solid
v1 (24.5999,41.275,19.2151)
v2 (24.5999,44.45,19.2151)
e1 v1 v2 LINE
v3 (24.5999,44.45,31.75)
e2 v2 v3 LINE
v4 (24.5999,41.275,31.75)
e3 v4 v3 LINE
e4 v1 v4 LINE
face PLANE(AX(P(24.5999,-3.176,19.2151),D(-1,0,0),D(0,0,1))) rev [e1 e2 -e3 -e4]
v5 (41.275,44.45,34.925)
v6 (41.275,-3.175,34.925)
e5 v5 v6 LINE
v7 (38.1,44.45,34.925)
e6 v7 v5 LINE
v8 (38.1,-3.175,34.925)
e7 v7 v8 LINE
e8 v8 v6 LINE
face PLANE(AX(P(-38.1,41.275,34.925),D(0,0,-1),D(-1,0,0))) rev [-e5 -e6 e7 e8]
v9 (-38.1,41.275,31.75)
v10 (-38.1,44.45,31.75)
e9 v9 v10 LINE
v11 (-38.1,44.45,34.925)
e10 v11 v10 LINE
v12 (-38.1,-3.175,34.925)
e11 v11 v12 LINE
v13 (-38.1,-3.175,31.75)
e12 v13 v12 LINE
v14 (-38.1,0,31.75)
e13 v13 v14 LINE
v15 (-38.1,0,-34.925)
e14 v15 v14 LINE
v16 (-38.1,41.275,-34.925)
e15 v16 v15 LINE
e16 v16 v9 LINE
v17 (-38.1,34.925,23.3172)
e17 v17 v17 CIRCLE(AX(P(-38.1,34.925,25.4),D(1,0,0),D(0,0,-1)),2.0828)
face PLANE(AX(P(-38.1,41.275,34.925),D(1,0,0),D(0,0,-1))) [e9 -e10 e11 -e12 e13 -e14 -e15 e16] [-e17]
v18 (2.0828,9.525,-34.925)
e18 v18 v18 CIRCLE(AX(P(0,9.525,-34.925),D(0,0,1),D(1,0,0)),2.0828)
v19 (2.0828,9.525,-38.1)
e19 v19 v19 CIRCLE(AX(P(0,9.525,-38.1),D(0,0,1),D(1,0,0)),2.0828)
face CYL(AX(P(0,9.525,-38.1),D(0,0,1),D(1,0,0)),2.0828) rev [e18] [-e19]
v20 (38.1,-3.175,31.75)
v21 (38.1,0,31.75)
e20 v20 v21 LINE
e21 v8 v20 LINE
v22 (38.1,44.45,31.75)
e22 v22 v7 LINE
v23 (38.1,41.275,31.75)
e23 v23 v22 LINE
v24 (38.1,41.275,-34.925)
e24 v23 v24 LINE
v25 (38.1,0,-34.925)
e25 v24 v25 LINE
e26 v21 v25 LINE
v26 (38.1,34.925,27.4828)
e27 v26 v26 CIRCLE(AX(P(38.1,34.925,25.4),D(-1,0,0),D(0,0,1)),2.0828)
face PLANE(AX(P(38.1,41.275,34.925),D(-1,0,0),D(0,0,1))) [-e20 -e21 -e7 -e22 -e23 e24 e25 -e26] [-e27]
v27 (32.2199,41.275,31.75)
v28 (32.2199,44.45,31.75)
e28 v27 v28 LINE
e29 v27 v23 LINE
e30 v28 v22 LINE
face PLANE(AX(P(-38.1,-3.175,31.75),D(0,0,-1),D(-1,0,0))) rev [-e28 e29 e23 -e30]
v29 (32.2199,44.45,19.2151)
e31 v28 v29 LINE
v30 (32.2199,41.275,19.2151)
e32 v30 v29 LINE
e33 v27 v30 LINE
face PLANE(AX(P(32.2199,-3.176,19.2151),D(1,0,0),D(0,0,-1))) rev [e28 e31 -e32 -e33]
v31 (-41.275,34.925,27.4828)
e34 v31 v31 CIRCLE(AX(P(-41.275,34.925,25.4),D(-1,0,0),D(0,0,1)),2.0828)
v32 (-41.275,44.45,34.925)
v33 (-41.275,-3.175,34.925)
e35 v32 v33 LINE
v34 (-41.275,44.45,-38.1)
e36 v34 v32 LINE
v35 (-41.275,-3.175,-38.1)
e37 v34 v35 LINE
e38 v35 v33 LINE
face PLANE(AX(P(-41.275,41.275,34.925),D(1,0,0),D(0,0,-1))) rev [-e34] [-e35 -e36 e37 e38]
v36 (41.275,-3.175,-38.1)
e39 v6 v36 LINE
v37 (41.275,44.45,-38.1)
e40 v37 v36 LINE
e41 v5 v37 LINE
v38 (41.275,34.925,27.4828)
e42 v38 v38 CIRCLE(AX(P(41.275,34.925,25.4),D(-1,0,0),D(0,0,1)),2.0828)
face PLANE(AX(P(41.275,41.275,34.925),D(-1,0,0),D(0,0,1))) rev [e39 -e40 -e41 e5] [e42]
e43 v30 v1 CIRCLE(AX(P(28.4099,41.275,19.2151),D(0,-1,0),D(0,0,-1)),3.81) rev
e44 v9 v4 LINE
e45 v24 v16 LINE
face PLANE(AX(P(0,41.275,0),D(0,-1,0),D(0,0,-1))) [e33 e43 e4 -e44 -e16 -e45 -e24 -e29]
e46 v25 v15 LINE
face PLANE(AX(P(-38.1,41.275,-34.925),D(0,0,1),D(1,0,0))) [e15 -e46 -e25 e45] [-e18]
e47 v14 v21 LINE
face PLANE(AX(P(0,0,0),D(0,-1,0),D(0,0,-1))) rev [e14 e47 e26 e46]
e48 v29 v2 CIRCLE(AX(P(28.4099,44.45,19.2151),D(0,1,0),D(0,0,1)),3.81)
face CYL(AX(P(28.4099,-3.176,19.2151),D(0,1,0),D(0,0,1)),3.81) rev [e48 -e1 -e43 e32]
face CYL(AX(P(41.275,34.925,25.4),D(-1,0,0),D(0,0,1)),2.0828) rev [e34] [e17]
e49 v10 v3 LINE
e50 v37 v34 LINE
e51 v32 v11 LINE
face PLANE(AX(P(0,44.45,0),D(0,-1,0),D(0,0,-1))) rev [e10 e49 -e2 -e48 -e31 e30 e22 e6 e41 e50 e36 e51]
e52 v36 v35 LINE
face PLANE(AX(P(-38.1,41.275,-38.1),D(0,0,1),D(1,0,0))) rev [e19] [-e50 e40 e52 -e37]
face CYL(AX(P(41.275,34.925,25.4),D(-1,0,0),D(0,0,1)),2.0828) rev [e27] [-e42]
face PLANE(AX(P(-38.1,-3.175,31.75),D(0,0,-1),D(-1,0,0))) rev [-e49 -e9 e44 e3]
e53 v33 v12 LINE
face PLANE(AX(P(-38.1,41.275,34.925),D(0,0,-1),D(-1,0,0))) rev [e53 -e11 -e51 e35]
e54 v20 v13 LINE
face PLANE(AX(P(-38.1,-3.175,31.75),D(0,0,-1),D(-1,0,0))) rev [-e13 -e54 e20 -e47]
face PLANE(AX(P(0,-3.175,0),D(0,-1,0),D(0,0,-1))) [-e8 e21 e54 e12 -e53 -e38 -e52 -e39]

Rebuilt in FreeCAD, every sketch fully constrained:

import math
import FreeCAD as App
import Part
import Sketcher
from FreeCAD import Vector
Q = App.Units.Quantity


def faces_at(feature, points):
    """Names of the faces that lie closest to the given points."""
    faces = feature.Shape.Faces
    near = lambda p: min(range(len(faces)), key=lambda i: faces[i].distToShape(Part.Vertex(*p))[0])
    return sorted({f"Face{near(p) + 1}" for p in points})

doc = App.newDocument("Part")
body = doc.addObject("PartDesign::Body", "Body")

# Sketch on XZ plane
sketch1 = body.newObject("Sketcher::SketchObject", "Sketch")
sketch1.AttachmentSupport = (doc.getObject("XZ_Plane"), [""])
sketch1.MapMode = "FlatFace"
sketch1.addGeometry([
    Part.LineSegment(Vector(-38, -35, 0), Vector(-38, 35, 0)),
    Part.LineSegment(Vector(-38, 35, 0), Vector(38, 35, 0)),
    Part.LineSegment(Vector(38, 35, 0), Vector(38, -35, 0)),
    Part.LineSegment(Vector(38, -35, 0), Vector(-38, -35, 0)),
], False)
sketch1.addConstraint([
    Sketcher.Constraint("Coincident", 0, 2, 1, 1),
    Sketcher.Constraint("Coincident", 1, 2, 2, 1),
    Sketcher.Constraint("Coincident", 2, 2, 3, 1),
    Sketcher.Constraint("Coincident", 3, 2, 0, 1),
    Sketcher.Constraint("Vertical", 0),
    Sketcher.Constraint("Horizontal", 1),
    Sketcher.Constraint("Vertical", 2),
    Sketcher.Constraint("Horizontal", 3),
    Sketcher.Constraint("Symmetric", 0, 2, 2, 2, -1, 1),
    Sketcher.Constraint("DistanceX", 1, 1, 1, 2, Q("3 in")),
    Sketcher.Constraint("DistanceY", 0, 1, 0, 2, Q("2.75 in")),
])
pad1 = body.newObject("PartDesign::Pad", "Pad")
pad1.Profile = sketch1
pad1.Length = Q("1.625 in")
pad1.Reversed = True
doc.recompute()

thickness = body.newObject("PartDesign::Thickness", "Thickness")
thickness.Base = (pad1, faces_at(pad1, [(0, 20.637, 34.925)]))
thickness.Value = Q("0.125 in")
thickness.Reversed = False
thickness.Join = "Intersection"

# Sketch on XZ plane
sketch2 = body.newObject("Sketcher::SketchObject", "Sketch001")
sketch2.AttachmentSupport = (doc.getObject("XZ_Plane"), [""])
sketch2.MapMode = "FlatFace"
sketch2.AttachmentOffset = App.Placement(Vector(0, 0, -1.75 * 25.4), App.Rotation())
sketch2.addGeometry([
    Part.LineSegment(Vector(-38.1, 31.8, 0), Vector(-38.1, 34.9, 0)),
    Part.LineSegment(Vector(-38.1, 34.9, 0), Vector(38.1, 34.9, 0)),
    Part.LineSegment(Vector(38.1, 34.9, 0), Vector(38.1, 31.8, 0)),
    Part.LineSegment(Vector(38.1, 31.8, 0), Vector(-38.1, 31.8, 0)),
], False)
sketch2.addConstraint([
    Sketcher.Constraint("Coincident", 0, 2, 1, 1),
    Sketcher.Constraint("Coincident", 1, 2, 2, 1),
    Sketcher.Constraint("Coincident", 2, 2, 3, 1),
    Sketcher.Constraint("Coincident", 3, 2, 0, 1),
    Sketcher.Constraint("Vertical", 0),
    Sketcher.Constraint("Horizontal", 1),
    Sketcher.Constraint("Vertical", 2),
    Sketcher.Constraint("Horizontal", 3),
    Sketcher.Constraint("DistanceX", 1, 1, 1, 2, Q("3 in")),
    Sketcher.Constraint("DistanceX", 0, 2, -1, 1, Q("1.5 in")),
    Sketcher.Constraint("DistanceY", 0, 1, 0, 2, Q("0.125 in")),
    Sketcher.Constraint("DistanceY", -1, 1, 2, 2, Q("1.25 in")),
])
pocket1 = body.newObject("PartDesign::Pocket", "Pocket")
pocket1.Profile = sketch2
pocket1.Type = "ThroughAll"
pocket1.Midplane = True

# Sketch on XZ plane
sketch3 = body.newObject("Sketcher::SketchObject", "Sketch002")
sketch3.AttachmentSupport = (doc.getObject("XZ_Plane"), [""])
sketch3.MapMode = "FlatFace"
sketch3.AttachmentOffset = App.Placement(Vector(0, 0, -1.75 * 25.4), App.Rotation())
sketch3.addGeometry([
    Part.LineSegment(Vector(24.6, 19.2, 0), Vector(24.6, 31.8, 0)),
    Part.LineSegment(Vector(24.6, 31.8, 0), Vector(32.2, 31.8, 0)),
    Part.LineSegment(Vector(32.2, 31.8, 0), Vector(32.2, 19.2, 0)),
    Part.ArcOfCircle(Part.Circle(Vector(28.4, 19.2, 0), Vector(0, 0, 1), 3.8), math.radians(180), math.radians(360)),
], False)
sketch3.addConstraint([
    Sketcher.Constraint("Coincident", 0, 2, 1, 1),
    Sketcher.Constraint("Coincident", 1, 2, 2, 1),
    Sketcher.Constraint("Tangent", 2, 2, 3, 2),
    Sketcher.Constraint("Tangent", 3, 1, 0, 1),
    Sketcher.Constraint("Vertical", 0),
    Sketcher.Constraint("Horizontal", 1),
    Sketcher.Constraint("Vertical", 2),
    Sketcher.Constraint("Radius", 3, Q("0.15 in")),
    Sketcher.Constraint("DistanceY", -1, 1, 0, 2, Q("1.25 in")),
    Sketcher.Constraint("DistanceY", 0, 1, 0, 2, Q("0.4935 in")),
    Sketcher.Constraint("DistanceX", -1, 1, 3, 3, Q("1.1185 in")),
])
pocket2 = body.newObject("PartDesign::Pocket", "Pocket001")
pocket2.Profile = sketch3
pocket2.Type = "UpToFirst"
pocket2.Reversed = True

# Sketch on XY plane
sketch4 = body.newObject("Sketcher::SketchObject", "Sketch003")
sketch4.AttachmentSupport = (doc.getObject("XY_Plane"), [""])
sketch4.MapMode = "FlatFace"
sketch4.AttachmentOffset = App.Placement(Vector(0, 0, -1.375 * 25.4), App.Rotation())
sketch4.addGeometry(Part.Circle(Vector(0, 9.5, 0), Vector(0, 0, 1), 2.1), False)
sketch4.addConstraint([
    Sketcher.Constraint("PointOnObject", 0, 3, -2),
    Sketcher.Constraint("Diameter", 0, Q("0.164 in")),
    Sketcher.Constraint("DistanceY", -1, 1, 0, 3, Q("0.375 in")),
])
pocket3 = body.newObject("PartDesign::Pocket", "Pocket002")
pocket3.Profile = sketch4
pocket3.Length = Q("0.125 in")

# Sketch on YZ plane
sketch5 = body.newObject("Sketcher::SketchObject", "Sketch004")
sketch5.AttachmentSupport = (doc.getObject("YZ_Plane"), [""])
sketch5.MapMode = "FlatFace"
sketch5.AttachmentOffset = App.Placement(Vector(0, 0, 1.5 * 25.4), App.Rotation())
sketch5.addGeometry(Part.Circle(Vector(34.9, 25.4, 0), Vector(0, 0, 1), 2.1), False)
sketch5.addConstraint([
    Sketcher.Constraint("Diameter", 0, Q("0.164 in")),
    Sketcher.Constraint("DistanceY", -1, 1, 0, 3, Q("1 in")),
    Sketcher.Constraint("DistanceX", -1, 1, 0, 3, Q("1.375 in")),
])
pocket4 = body.newObject("PartDesign::Pocket", "Pocket003")
pocket4.Profile = sketch5
pocket4.Type = "ThroughAll"
pocket4.Midplane = True

doc.recompute()
